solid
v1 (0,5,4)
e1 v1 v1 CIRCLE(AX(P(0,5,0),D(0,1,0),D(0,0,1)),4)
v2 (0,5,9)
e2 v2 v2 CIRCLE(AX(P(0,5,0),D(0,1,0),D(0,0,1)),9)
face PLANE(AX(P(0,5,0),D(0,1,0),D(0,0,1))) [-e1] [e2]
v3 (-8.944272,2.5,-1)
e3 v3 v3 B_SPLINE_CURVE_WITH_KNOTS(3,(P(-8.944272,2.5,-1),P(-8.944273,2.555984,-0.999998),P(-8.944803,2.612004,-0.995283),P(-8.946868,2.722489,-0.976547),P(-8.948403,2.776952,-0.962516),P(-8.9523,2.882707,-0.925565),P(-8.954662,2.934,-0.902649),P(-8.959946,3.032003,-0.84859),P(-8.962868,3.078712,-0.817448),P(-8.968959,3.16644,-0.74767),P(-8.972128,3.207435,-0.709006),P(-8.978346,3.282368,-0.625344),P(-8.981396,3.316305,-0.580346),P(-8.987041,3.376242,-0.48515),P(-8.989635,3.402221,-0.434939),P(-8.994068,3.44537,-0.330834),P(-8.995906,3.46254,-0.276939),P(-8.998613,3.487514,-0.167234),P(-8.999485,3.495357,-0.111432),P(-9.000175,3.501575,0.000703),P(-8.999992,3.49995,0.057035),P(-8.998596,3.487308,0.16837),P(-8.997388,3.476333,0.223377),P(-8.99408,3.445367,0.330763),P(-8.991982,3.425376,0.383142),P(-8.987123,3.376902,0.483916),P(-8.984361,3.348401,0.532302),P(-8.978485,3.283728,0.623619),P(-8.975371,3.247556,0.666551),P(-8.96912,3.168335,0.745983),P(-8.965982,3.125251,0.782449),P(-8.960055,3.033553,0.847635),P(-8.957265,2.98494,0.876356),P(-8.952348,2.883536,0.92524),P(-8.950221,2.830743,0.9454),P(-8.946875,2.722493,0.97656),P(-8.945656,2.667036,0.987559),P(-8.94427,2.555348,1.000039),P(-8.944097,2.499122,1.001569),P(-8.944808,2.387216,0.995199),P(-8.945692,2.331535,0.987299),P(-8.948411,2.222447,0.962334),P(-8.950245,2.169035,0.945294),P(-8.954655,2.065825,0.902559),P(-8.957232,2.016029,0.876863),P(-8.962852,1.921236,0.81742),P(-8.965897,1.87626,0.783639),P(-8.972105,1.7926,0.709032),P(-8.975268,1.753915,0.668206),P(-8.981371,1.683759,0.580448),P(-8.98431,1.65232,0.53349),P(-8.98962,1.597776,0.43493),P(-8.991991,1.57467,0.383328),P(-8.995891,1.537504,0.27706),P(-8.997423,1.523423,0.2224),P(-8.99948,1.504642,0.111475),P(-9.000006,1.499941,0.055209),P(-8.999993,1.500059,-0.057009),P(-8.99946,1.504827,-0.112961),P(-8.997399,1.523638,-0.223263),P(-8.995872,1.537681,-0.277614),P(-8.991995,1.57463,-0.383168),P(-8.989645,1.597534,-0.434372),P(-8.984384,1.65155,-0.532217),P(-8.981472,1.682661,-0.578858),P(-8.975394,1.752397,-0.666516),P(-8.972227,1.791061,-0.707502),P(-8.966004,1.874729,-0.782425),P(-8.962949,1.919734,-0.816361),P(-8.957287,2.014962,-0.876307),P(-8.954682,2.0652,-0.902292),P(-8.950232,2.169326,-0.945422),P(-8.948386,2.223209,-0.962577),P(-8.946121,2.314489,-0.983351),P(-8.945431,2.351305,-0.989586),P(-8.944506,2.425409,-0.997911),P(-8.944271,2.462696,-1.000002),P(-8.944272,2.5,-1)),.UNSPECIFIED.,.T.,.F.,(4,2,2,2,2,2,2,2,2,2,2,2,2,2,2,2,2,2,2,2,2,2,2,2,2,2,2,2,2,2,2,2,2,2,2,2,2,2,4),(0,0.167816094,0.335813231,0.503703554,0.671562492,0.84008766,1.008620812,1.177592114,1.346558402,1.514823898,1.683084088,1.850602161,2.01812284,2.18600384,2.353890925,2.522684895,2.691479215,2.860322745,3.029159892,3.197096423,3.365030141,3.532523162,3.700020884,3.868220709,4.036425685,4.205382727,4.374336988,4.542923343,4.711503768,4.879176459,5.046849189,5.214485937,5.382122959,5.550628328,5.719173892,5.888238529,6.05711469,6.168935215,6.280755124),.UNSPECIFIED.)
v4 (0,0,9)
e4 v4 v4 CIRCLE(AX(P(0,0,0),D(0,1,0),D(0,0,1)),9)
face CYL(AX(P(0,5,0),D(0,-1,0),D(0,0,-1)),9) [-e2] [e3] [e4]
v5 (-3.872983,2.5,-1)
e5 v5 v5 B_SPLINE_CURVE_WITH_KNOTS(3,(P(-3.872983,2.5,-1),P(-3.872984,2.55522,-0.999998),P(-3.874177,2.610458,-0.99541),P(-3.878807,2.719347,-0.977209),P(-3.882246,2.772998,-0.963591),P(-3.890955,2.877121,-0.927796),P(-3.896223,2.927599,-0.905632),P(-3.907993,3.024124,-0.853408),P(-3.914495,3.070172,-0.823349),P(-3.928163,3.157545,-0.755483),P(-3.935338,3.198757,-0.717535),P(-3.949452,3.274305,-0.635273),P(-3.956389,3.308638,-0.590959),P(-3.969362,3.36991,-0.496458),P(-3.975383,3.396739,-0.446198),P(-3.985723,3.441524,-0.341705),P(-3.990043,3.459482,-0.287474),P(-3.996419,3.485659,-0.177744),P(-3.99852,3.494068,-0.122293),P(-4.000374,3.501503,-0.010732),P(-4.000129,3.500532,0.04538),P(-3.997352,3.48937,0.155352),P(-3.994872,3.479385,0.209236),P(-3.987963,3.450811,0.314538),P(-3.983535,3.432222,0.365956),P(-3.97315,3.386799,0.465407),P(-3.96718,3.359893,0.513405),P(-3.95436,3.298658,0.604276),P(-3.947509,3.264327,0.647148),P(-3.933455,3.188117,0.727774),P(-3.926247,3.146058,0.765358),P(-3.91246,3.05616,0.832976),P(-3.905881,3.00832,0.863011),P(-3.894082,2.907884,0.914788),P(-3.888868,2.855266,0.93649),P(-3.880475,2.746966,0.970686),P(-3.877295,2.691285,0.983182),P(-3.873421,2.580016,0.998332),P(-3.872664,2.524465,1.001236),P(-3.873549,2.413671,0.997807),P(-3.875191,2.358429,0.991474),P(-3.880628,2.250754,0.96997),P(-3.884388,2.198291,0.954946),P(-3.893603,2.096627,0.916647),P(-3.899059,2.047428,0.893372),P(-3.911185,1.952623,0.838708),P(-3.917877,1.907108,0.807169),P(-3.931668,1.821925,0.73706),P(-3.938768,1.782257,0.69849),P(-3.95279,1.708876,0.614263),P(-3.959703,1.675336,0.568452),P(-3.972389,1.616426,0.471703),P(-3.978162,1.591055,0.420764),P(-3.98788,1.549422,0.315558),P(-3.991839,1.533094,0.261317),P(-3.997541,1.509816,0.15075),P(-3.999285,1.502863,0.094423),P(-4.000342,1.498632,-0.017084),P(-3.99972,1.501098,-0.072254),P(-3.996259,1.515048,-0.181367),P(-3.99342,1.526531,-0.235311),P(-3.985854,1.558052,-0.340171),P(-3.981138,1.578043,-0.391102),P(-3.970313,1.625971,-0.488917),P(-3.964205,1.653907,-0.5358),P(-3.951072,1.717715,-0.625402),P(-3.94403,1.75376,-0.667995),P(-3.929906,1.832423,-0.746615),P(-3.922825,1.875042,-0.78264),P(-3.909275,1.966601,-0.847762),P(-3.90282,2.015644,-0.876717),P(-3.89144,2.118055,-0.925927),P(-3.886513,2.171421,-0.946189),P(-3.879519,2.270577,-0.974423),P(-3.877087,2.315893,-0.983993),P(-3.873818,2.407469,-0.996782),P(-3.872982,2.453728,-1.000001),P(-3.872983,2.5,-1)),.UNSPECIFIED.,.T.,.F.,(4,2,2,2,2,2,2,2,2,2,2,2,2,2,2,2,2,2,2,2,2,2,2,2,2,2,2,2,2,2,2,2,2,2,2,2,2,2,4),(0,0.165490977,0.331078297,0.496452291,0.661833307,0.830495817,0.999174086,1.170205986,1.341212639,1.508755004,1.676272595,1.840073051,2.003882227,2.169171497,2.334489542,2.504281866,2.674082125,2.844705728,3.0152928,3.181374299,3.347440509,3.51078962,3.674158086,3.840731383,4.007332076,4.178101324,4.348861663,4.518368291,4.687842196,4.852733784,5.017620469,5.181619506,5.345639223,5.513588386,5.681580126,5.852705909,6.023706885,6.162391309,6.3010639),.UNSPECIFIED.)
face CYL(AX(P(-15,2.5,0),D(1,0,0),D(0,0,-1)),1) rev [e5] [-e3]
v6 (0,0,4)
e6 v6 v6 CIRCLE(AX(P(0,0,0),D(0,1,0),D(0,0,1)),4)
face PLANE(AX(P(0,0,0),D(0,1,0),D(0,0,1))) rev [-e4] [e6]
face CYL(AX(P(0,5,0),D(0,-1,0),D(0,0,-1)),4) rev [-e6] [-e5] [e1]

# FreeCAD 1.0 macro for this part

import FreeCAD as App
import Part
import Sketcher

V = App.Vector

doc = App.newDocument("Part")
body = doc.addObject("PartDesign::Body", "Body")

sketch1 = doc.addObject("Sketcher::SketchObject", "Sketch")
body.addObject(sketch1)
sketch1.AttachmentSupport = (doc.XZ_Plane, [""])
sketch1.MapMode = "FlatFace"
sketch1.addGeometry(Part.Circle(V(0, 0, 0), V(0, 0, 1), 9), False)
sketch1.addGeometry(Part.Circle(V(0, 0, 0), V(0, 0, 1), 4), False)
sketch1.addConstraint(Sketcher.Constraint("Coincident", 0, 3, -1, 1))
sketch1.addConstraint(Sketcher.Constraint("Coincident", 1, 3, -1, 1))
sketch1.addConstraint(Sketcher.Constraint("Diameter", 0, 18.0))
sketch1.addConstraint(Sketcher.Constraint("Diameter", 1, 8.0))
pad1 = doc.addObject("PartDesign::Pad", "Pad")
body.addObject(pad1)
pad1.Profile = sketch1
pad1.Length = 5
pad1.Reversed = True

sketch2 = doc.addObject("Sketcher::SketchObject", "Sketch001")
body.addObject(sketch2)
sketch2.AttachmentSupport = (doc.YZ_Plane, [""])
sketch2.MapMode = "FlatFace"
sketch2.addGeometry(Part.Circle(V(2.5, 0, 0), V(0, 0, 1), 1), False)
sketch2.addConstraint(Sketcher.Constraint("PointOnObject", 0, 3, -1))
sketch2.addConstraint(Sketcher.Constraint("Diameter", 0, 2.0))
sketch2.addConstraint(Sketcher.Constraint("DistanceX", -1, 1, 0, 3, 2.5))
pocket1 = doc.addObject("PartDesign::Pocket", "Pocket")
body.addObject(pocket1)
pocket1.Profile = sketch2
pocket1.Length = 15

doc.recompute()
